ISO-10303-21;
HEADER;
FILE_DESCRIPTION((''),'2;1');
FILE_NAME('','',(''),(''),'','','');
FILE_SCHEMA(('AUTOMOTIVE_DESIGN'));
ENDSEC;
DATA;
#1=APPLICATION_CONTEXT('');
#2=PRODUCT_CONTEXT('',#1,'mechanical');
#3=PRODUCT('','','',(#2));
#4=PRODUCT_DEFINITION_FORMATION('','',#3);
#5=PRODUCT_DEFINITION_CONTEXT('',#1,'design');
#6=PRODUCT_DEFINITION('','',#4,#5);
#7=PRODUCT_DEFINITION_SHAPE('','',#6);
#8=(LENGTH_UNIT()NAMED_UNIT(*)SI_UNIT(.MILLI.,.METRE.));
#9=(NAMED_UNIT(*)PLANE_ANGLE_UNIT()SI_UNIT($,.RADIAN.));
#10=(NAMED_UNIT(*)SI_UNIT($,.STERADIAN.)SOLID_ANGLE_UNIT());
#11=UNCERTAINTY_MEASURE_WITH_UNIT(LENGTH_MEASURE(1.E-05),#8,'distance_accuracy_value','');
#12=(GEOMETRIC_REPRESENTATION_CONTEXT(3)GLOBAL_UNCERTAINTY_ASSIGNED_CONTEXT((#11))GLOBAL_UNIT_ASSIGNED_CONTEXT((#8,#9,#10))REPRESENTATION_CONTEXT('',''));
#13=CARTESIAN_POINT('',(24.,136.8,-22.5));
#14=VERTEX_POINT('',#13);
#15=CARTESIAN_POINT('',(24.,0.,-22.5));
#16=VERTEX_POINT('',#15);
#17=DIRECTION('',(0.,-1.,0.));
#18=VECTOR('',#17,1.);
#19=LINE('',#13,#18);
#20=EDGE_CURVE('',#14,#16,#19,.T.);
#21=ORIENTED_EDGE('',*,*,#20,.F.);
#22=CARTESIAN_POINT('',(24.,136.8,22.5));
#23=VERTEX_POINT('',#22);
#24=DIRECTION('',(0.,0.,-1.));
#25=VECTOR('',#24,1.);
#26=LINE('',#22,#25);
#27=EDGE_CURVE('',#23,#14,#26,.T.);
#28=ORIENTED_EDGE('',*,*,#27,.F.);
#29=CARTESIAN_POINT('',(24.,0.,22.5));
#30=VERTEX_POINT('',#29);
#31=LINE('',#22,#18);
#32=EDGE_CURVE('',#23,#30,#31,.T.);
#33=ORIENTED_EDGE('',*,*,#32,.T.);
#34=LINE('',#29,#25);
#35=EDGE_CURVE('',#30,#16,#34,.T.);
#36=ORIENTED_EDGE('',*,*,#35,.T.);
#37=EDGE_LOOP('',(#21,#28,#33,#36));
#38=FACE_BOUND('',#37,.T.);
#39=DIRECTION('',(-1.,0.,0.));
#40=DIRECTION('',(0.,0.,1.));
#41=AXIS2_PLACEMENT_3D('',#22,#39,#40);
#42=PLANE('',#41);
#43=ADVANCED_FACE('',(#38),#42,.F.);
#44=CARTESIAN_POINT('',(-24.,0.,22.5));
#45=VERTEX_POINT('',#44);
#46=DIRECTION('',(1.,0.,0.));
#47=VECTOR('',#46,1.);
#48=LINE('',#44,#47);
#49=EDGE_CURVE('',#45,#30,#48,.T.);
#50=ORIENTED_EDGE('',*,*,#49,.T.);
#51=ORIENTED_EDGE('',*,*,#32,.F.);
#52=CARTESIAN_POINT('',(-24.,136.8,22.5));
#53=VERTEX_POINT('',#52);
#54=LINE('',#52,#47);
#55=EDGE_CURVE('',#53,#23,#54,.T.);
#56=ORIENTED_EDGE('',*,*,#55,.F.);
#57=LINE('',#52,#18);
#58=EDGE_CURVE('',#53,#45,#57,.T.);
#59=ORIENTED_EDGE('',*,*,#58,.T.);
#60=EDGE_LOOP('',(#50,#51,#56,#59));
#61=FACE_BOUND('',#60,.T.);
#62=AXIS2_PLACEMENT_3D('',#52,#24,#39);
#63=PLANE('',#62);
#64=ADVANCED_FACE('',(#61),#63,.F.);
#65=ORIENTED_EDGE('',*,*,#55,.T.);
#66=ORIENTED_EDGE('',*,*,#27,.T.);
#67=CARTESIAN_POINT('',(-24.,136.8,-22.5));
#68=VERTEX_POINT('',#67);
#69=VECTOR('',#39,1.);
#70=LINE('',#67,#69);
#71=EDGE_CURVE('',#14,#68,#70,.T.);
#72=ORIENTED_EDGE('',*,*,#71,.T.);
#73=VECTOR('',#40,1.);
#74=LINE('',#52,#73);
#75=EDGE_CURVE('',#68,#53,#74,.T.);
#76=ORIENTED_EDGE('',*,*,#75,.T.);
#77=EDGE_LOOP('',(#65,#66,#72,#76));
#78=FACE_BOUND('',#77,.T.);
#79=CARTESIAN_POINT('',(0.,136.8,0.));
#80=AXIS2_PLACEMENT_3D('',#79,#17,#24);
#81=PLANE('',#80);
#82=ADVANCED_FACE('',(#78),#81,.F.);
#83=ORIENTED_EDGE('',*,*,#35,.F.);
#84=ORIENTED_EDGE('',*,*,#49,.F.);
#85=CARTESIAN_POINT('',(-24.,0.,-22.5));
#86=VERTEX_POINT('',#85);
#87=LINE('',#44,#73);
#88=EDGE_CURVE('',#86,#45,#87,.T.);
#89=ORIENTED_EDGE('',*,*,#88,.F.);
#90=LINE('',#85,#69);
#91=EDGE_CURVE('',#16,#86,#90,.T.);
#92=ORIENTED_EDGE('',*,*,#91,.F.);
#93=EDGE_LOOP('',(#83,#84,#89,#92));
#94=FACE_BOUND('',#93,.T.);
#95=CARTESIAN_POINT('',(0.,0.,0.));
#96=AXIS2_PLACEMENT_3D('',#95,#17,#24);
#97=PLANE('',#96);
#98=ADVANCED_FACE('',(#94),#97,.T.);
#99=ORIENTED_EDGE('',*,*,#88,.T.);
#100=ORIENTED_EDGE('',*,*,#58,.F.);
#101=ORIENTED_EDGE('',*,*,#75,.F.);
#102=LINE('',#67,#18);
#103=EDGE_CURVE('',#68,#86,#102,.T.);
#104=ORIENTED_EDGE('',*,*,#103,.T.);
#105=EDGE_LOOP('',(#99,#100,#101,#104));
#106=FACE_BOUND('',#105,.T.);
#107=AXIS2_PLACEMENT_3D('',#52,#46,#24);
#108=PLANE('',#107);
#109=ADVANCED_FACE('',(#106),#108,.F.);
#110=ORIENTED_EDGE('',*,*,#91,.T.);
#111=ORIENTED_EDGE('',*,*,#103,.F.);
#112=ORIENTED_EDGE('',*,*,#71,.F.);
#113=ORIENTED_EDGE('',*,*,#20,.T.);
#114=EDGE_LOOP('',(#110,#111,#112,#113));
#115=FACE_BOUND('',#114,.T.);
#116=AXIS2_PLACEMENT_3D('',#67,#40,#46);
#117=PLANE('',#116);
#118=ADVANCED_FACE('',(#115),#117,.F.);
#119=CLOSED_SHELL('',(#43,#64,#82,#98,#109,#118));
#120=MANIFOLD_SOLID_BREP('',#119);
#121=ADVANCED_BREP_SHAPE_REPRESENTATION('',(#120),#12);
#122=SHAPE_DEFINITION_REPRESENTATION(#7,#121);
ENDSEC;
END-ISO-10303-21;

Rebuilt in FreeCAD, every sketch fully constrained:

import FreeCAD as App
import Part
import Sketcher

V = App.Vector

doc = App.newDocument("Part")
body = doc.addObject("PartDesign::Body", "Body")

# Sketch on XZ plane
sketch1 = body.newObject("Sketcher::SketchObject", "Sketch")
sketch1.AttachmentSupport = (doc.getObject("XZ_Plane"), [""])
sketch1.MapMode = "FlatFace"
sketch1.addGeometry(Part.LineSegment(V(-24, -22, 0), V(-24, 22, 0)), False)
sketch1.addGeometry(Part.LineSegment(V(-24, 22, 0), V(24, 22, 0)), False)
sketch1.addGeometry(Part.LineSegment(V(24, 22, 0), V(24, -22, 0)), False)
sketch1.addGeometry(Part.LineSegment(V(24, -22, 0), V(-24, -22, 0)), False)
sketch1.addConstraint(Sketcher.Constraint("Coincident", 0, 2, 1, 1))
sketch1.addConstraint(Sketcher.Constraint("Coincident", 1, 2, 2, 1))
sketch1.addConstraint(Sketcher.Constraint("Coincident", 2, 2, 3, 1))
sketch1.addConstraint(Sketcher.Constraint("Coincident", 3, 2, 0, 1))
sketch1.addConstraint(Sketcher.Constraint("Vertical", 0))
sketch1.addConstraint(Sketcher.Constraint("Horizontal", 1))
sketch1.addConstraint(Sketcher.Constraint("Vertical", 2))
sketch1.addConstraint(Sketcher.Constraint("Horizontal", 3))
sketch1.addConstraint(Sketcher.Constraint("Symmetric", 0, 2, 2, 2, -1, 1))
sketch1.addConstraint(Sketcher.Constraint("DistanceX", 1, 1, 1, 2, 48.0))
sketch1.addConstraint(Sketcher.Constraint("DistanceY", 0, 1, 0, 2, 45.0))
pad1 = body.newObject("PartDesign::Pad", "Pad")
pad1.Profile = sketch1
pad1.Length = 136.8
pad1.Reversed = True

doc.recompute()
